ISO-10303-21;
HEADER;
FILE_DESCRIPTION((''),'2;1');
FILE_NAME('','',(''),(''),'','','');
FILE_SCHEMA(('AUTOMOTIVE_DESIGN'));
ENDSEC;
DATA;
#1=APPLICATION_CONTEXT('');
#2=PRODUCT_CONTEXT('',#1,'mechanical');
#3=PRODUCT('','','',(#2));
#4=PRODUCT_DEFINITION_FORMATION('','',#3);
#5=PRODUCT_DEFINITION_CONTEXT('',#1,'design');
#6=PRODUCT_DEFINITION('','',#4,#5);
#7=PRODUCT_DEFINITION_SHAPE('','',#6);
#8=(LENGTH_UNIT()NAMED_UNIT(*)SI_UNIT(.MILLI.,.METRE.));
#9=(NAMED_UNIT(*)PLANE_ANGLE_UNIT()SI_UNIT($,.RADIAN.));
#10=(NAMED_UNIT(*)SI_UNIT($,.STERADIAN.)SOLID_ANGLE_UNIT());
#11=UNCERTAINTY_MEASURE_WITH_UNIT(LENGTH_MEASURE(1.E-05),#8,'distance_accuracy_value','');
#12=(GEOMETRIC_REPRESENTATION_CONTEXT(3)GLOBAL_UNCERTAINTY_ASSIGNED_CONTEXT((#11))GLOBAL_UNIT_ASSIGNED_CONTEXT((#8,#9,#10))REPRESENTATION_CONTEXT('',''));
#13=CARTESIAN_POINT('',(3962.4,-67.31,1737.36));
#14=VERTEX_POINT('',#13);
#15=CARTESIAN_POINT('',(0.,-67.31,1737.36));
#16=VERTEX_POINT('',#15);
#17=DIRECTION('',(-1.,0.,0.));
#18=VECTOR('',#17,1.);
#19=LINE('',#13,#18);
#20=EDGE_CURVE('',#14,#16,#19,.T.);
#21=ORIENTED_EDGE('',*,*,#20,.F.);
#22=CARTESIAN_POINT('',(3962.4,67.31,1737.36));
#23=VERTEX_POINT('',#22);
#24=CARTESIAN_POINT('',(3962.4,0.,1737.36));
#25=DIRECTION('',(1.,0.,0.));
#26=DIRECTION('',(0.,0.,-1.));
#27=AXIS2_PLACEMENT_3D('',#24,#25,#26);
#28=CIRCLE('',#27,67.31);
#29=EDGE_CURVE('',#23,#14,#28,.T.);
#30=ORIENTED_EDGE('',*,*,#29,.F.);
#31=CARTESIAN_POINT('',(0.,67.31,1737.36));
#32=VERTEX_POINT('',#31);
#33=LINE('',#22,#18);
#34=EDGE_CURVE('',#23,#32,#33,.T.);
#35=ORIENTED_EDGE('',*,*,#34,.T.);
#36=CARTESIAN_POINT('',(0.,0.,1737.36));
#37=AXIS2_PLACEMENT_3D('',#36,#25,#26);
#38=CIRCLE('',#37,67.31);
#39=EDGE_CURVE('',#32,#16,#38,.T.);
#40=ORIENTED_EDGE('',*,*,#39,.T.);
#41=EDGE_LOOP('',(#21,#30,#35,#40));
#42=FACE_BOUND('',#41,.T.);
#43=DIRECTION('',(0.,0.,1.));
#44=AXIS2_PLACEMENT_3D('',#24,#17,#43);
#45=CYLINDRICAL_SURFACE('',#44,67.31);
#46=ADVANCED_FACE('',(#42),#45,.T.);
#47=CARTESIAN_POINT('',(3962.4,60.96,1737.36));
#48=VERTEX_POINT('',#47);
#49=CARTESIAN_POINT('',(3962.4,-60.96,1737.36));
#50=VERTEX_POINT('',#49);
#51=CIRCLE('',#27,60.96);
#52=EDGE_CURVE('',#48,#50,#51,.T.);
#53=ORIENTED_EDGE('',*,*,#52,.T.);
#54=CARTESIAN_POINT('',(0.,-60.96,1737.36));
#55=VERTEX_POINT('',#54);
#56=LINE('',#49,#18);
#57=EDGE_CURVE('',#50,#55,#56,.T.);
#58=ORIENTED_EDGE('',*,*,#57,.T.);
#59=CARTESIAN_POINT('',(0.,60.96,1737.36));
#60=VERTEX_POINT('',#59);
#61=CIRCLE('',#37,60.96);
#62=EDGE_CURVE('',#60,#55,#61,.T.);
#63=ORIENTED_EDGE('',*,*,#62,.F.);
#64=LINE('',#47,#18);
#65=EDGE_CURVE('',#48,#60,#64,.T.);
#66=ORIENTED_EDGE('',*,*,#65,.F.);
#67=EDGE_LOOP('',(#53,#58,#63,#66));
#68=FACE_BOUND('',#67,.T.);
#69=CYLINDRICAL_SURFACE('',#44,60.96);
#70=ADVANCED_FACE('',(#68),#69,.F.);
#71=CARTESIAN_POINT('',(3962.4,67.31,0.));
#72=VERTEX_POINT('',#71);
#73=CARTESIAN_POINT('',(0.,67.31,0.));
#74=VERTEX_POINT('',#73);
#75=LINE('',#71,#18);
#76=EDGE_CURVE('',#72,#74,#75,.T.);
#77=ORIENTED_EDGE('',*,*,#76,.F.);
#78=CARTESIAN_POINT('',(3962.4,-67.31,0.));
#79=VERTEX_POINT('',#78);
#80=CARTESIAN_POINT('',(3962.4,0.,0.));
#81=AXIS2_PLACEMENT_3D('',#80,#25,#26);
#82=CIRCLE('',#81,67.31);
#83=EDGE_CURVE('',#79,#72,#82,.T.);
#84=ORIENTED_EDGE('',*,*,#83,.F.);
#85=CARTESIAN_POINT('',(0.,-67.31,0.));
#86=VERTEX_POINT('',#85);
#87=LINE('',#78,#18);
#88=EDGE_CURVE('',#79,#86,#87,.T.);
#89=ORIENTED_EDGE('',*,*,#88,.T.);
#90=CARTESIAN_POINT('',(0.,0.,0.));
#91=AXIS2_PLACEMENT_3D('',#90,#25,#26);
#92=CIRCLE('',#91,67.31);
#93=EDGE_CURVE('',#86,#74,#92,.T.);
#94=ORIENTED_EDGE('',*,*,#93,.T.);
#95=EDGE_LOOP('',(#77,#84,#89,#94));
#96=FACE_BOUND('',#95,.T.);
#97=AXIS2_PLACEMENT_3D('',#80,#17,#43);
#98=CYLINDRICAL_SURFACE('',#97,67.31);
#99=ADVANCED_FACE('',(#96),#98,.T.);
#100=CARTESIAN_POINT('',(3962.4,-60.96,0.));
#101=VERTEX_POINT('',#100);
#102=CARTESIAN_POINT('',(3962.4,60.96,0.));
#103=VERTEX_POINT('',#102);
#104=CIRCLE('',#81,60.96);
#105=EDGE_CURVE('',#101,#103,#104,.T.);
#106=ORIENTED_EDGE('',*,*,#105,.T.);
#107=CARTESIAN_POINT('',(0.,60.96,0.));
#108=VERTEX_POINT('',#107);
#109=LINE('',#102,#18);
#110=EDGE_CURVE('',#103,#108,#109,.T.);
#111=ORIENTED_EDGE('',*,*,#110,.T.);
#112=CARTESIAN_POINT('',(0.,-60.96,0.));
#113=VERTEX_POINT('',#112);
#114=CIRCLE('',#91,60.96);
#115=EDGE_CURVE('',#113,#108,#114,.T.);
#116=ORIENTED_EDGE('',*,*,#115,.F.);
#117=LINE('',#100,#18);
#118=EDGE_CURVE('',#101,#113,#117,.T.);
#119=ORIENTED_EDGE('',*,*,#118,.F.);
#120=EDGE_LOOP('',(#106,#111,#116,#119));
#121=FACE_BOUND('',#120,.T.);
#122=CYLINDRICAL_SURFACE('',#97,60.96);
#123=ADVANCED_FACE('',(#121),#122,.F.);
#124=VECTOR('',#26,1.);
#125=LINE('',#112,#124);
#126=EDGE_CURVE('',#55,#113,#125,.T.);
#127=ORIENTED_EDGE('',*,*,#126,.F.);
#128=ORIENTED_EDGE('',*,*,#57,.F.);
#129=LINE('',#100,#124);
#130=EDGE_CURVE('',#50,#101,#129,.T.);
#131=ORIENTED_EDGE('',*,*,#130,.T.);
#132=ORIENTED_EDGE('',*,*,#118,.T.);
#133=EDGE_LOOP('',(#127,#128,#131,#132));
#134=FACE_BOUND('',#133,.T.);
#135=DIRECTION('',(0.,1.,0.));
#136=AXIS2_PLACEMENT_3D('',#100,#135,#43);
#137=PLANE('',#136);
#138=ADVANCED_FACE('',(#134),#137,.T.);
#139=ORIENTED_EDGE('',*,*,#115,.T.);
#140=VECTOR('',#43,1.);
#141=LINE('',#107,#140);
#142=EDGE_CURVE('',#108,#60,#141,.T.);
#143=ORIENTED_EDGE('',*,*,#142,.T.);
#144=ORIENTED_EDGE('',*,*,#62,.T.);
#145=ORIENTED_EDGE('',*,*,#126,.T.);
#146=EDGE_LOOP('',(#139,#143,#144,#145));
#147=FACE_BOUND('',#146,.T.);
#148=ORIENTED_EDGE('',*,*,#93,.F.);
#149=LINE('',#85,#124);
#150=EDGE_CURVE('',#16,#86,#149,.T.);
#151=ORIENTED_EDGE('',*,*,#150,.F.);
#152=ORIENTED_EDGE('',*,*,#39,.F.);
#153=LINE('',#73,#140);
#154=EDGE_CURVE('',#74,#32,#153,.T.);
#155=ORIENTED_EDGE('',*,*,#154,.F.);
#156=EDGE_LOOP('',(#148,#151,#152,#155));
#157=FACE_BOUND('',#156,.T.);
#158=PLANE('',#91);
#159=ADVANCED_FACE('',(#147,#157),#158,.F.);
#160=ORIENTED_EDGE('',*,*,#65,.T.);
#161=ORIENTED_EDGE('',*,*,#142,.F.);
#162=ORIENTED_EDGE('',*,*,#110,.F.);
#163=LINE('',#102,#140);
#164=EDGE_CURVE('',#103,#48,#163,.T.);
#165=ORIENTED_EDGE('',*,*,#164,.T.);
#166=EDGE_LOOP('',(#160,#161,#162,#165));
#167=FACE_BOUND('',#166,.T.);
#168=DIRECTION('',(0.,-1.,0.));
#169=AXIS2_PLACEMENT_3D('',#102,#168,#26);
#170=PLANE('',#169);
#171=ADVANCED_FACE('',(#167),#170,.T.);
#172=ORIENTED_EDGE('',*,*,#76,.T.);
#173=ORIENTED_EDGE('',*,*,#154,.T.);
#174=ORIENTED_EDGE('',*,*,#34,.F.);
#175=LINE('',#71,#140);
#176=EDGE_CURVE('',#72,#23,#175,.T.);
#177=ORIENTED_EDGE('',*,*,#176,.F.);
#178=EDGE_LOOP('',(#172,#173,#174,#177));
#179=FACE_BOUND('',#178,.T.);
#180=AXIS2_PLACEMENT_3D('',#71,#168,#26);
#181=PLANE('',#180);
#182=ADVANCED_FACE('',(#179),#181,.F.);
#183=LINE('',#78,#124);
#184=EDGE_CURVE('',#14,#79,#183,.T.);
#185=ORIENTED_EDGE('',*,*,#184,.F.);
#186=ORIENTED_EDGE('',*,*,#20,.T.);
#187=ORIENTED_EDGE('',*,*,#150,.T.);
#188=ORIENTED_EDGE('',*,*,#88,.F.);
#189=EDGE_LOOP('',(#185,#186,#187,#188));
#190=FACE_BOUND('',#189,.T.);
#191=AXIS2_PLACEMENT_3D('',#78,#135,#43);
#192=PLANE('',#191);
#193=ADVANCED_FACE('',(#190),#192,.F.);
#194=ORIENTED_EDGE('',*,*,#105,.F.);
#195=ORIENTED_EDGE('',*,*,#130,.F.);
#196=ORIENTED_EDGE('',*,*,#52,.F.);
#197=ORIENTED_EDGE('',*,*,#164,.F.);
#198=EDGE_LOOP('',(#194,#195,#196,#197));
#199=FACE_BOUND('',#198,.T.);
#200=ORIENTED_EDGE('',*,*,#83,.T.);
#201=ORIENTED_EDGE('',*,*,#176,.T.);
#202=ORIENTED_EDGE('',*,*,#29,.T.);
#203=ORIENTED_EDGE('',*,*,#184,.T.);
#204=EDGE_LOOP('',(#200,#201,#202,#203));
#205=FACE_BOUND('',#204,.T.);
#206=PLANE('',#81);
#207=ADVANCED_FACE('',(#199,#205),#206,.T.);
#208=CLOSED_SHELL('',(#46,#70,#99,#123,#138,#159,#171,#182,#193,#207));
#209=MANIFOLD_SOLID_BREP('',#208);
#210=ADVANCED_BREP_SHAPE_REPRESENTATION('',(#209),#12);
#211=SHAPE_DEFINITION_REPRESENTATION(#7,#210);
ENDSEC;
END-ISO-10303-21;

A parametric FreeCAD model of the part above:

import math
import FreeCAD as App
import Part
import Sketcher
Q = App.Units.Quantity

doc = App.newDocument("Part")
body = doc.addObject("PartDesign::Body", "Body")

# Sketch on YZ plane
sketch1 = body.newObject("Sketcher::SketchObject", "Sketch")
sketch1.AttachmentSupport = (doc.getObject("YZ_Plane"), [""])
sketch1.MapMode = "FlatFace"
sketch1.addGeometry([
    Part.LineSegment(App.Vector(-67, 1737, 0), App.Vector(-67, 0, 0)),  # 0
    Part.ArcOfCircle(Part.Circle(App.Vector(0, 0, 0), App.Vector(0, 0, 1), 67), math.radians(180), math.radians(360)),  # 1
    Part.LineSegment(App.Vector(67, 0, 0), App.Vector(67, 1737, 0)),  # 2
    Part.ArcOfCircle(Part.Circle(App.Vector(0, 1737, 0), App.Vector(0, 0, 1), 67), math.radians(0), math.radians(180)),  # 3
    Part.LineSegment(App.Vector(-61, 0, 0), App.Vector(-61, 1737, 0)),  # 4
    Part.ArcOfCircle(Part.Circle(App.Vector(0, 1737, 0), App.Vector(0, 0, 1), 61), math.radians(0), math.radians(180)),  # 5
    Part.LineSegment(App.Vector(61, 1737, 0), App.Vector(61, 0, 0)),  # 6
    Part.ArcOfCircle(Part.Circle(App.Vector(0, 0, 0), App.Vector(0, 0, 1), 61), math.radians(180), math.radians(360)),  # 7
], False)
sketch1.addConstraint([
    Sketcher.Constraint("Tangent", 0, 2, 1, 1),
    Sketcher.Constraint("Tangent", 1, 2, 2, 1),
    Sketcher.Constraint("Tangent", 2, 2, 3, 1),
    Sketcher.Constraint("Tangent", 3, 2, 0, 1),
    Sketcher.Constraint("Tangent", 4, 2, 5, 2),
    Sketcher.Constraint("Tangent", 5, 1, 6, 1),
    Sketcher.Constraint("Tangent", 6, 2, 7, 2),
    Sketcher.Constraint("Tangent", 7, 1, 4, 1),
    Sketcher.Constraint("Vertical", 0),
    Sketcher.Constraint("Vertical", 2),
    Sketcher.Constraint("Vertical", 4),
    Sketcher.Constraint("Vertical", 6),
    Sketcher.Constraint("Coincident", 1, 3, -1, 1),
    Sketcher.Constraint("Coincident", 7, 3, -1, 1),
    Sketcher.Constraint("Horizontal", 5, 3, 2, 2),
    Sketcher.Constraint("Radius", 5, Q("2.4 in")),
    Sketcher.Constraint("Radius", 1, Q("2.65 in")),
    Sketcher.Constraint("DistanceY", 0, 2, 0, 1, Q("68.4 in")),
])
pad1 = body.newObject("PartDesign::Pad", "Pad")
pad1.Profile = sketch1
pad1.Length = Q("156 in")

doc.recompute()
